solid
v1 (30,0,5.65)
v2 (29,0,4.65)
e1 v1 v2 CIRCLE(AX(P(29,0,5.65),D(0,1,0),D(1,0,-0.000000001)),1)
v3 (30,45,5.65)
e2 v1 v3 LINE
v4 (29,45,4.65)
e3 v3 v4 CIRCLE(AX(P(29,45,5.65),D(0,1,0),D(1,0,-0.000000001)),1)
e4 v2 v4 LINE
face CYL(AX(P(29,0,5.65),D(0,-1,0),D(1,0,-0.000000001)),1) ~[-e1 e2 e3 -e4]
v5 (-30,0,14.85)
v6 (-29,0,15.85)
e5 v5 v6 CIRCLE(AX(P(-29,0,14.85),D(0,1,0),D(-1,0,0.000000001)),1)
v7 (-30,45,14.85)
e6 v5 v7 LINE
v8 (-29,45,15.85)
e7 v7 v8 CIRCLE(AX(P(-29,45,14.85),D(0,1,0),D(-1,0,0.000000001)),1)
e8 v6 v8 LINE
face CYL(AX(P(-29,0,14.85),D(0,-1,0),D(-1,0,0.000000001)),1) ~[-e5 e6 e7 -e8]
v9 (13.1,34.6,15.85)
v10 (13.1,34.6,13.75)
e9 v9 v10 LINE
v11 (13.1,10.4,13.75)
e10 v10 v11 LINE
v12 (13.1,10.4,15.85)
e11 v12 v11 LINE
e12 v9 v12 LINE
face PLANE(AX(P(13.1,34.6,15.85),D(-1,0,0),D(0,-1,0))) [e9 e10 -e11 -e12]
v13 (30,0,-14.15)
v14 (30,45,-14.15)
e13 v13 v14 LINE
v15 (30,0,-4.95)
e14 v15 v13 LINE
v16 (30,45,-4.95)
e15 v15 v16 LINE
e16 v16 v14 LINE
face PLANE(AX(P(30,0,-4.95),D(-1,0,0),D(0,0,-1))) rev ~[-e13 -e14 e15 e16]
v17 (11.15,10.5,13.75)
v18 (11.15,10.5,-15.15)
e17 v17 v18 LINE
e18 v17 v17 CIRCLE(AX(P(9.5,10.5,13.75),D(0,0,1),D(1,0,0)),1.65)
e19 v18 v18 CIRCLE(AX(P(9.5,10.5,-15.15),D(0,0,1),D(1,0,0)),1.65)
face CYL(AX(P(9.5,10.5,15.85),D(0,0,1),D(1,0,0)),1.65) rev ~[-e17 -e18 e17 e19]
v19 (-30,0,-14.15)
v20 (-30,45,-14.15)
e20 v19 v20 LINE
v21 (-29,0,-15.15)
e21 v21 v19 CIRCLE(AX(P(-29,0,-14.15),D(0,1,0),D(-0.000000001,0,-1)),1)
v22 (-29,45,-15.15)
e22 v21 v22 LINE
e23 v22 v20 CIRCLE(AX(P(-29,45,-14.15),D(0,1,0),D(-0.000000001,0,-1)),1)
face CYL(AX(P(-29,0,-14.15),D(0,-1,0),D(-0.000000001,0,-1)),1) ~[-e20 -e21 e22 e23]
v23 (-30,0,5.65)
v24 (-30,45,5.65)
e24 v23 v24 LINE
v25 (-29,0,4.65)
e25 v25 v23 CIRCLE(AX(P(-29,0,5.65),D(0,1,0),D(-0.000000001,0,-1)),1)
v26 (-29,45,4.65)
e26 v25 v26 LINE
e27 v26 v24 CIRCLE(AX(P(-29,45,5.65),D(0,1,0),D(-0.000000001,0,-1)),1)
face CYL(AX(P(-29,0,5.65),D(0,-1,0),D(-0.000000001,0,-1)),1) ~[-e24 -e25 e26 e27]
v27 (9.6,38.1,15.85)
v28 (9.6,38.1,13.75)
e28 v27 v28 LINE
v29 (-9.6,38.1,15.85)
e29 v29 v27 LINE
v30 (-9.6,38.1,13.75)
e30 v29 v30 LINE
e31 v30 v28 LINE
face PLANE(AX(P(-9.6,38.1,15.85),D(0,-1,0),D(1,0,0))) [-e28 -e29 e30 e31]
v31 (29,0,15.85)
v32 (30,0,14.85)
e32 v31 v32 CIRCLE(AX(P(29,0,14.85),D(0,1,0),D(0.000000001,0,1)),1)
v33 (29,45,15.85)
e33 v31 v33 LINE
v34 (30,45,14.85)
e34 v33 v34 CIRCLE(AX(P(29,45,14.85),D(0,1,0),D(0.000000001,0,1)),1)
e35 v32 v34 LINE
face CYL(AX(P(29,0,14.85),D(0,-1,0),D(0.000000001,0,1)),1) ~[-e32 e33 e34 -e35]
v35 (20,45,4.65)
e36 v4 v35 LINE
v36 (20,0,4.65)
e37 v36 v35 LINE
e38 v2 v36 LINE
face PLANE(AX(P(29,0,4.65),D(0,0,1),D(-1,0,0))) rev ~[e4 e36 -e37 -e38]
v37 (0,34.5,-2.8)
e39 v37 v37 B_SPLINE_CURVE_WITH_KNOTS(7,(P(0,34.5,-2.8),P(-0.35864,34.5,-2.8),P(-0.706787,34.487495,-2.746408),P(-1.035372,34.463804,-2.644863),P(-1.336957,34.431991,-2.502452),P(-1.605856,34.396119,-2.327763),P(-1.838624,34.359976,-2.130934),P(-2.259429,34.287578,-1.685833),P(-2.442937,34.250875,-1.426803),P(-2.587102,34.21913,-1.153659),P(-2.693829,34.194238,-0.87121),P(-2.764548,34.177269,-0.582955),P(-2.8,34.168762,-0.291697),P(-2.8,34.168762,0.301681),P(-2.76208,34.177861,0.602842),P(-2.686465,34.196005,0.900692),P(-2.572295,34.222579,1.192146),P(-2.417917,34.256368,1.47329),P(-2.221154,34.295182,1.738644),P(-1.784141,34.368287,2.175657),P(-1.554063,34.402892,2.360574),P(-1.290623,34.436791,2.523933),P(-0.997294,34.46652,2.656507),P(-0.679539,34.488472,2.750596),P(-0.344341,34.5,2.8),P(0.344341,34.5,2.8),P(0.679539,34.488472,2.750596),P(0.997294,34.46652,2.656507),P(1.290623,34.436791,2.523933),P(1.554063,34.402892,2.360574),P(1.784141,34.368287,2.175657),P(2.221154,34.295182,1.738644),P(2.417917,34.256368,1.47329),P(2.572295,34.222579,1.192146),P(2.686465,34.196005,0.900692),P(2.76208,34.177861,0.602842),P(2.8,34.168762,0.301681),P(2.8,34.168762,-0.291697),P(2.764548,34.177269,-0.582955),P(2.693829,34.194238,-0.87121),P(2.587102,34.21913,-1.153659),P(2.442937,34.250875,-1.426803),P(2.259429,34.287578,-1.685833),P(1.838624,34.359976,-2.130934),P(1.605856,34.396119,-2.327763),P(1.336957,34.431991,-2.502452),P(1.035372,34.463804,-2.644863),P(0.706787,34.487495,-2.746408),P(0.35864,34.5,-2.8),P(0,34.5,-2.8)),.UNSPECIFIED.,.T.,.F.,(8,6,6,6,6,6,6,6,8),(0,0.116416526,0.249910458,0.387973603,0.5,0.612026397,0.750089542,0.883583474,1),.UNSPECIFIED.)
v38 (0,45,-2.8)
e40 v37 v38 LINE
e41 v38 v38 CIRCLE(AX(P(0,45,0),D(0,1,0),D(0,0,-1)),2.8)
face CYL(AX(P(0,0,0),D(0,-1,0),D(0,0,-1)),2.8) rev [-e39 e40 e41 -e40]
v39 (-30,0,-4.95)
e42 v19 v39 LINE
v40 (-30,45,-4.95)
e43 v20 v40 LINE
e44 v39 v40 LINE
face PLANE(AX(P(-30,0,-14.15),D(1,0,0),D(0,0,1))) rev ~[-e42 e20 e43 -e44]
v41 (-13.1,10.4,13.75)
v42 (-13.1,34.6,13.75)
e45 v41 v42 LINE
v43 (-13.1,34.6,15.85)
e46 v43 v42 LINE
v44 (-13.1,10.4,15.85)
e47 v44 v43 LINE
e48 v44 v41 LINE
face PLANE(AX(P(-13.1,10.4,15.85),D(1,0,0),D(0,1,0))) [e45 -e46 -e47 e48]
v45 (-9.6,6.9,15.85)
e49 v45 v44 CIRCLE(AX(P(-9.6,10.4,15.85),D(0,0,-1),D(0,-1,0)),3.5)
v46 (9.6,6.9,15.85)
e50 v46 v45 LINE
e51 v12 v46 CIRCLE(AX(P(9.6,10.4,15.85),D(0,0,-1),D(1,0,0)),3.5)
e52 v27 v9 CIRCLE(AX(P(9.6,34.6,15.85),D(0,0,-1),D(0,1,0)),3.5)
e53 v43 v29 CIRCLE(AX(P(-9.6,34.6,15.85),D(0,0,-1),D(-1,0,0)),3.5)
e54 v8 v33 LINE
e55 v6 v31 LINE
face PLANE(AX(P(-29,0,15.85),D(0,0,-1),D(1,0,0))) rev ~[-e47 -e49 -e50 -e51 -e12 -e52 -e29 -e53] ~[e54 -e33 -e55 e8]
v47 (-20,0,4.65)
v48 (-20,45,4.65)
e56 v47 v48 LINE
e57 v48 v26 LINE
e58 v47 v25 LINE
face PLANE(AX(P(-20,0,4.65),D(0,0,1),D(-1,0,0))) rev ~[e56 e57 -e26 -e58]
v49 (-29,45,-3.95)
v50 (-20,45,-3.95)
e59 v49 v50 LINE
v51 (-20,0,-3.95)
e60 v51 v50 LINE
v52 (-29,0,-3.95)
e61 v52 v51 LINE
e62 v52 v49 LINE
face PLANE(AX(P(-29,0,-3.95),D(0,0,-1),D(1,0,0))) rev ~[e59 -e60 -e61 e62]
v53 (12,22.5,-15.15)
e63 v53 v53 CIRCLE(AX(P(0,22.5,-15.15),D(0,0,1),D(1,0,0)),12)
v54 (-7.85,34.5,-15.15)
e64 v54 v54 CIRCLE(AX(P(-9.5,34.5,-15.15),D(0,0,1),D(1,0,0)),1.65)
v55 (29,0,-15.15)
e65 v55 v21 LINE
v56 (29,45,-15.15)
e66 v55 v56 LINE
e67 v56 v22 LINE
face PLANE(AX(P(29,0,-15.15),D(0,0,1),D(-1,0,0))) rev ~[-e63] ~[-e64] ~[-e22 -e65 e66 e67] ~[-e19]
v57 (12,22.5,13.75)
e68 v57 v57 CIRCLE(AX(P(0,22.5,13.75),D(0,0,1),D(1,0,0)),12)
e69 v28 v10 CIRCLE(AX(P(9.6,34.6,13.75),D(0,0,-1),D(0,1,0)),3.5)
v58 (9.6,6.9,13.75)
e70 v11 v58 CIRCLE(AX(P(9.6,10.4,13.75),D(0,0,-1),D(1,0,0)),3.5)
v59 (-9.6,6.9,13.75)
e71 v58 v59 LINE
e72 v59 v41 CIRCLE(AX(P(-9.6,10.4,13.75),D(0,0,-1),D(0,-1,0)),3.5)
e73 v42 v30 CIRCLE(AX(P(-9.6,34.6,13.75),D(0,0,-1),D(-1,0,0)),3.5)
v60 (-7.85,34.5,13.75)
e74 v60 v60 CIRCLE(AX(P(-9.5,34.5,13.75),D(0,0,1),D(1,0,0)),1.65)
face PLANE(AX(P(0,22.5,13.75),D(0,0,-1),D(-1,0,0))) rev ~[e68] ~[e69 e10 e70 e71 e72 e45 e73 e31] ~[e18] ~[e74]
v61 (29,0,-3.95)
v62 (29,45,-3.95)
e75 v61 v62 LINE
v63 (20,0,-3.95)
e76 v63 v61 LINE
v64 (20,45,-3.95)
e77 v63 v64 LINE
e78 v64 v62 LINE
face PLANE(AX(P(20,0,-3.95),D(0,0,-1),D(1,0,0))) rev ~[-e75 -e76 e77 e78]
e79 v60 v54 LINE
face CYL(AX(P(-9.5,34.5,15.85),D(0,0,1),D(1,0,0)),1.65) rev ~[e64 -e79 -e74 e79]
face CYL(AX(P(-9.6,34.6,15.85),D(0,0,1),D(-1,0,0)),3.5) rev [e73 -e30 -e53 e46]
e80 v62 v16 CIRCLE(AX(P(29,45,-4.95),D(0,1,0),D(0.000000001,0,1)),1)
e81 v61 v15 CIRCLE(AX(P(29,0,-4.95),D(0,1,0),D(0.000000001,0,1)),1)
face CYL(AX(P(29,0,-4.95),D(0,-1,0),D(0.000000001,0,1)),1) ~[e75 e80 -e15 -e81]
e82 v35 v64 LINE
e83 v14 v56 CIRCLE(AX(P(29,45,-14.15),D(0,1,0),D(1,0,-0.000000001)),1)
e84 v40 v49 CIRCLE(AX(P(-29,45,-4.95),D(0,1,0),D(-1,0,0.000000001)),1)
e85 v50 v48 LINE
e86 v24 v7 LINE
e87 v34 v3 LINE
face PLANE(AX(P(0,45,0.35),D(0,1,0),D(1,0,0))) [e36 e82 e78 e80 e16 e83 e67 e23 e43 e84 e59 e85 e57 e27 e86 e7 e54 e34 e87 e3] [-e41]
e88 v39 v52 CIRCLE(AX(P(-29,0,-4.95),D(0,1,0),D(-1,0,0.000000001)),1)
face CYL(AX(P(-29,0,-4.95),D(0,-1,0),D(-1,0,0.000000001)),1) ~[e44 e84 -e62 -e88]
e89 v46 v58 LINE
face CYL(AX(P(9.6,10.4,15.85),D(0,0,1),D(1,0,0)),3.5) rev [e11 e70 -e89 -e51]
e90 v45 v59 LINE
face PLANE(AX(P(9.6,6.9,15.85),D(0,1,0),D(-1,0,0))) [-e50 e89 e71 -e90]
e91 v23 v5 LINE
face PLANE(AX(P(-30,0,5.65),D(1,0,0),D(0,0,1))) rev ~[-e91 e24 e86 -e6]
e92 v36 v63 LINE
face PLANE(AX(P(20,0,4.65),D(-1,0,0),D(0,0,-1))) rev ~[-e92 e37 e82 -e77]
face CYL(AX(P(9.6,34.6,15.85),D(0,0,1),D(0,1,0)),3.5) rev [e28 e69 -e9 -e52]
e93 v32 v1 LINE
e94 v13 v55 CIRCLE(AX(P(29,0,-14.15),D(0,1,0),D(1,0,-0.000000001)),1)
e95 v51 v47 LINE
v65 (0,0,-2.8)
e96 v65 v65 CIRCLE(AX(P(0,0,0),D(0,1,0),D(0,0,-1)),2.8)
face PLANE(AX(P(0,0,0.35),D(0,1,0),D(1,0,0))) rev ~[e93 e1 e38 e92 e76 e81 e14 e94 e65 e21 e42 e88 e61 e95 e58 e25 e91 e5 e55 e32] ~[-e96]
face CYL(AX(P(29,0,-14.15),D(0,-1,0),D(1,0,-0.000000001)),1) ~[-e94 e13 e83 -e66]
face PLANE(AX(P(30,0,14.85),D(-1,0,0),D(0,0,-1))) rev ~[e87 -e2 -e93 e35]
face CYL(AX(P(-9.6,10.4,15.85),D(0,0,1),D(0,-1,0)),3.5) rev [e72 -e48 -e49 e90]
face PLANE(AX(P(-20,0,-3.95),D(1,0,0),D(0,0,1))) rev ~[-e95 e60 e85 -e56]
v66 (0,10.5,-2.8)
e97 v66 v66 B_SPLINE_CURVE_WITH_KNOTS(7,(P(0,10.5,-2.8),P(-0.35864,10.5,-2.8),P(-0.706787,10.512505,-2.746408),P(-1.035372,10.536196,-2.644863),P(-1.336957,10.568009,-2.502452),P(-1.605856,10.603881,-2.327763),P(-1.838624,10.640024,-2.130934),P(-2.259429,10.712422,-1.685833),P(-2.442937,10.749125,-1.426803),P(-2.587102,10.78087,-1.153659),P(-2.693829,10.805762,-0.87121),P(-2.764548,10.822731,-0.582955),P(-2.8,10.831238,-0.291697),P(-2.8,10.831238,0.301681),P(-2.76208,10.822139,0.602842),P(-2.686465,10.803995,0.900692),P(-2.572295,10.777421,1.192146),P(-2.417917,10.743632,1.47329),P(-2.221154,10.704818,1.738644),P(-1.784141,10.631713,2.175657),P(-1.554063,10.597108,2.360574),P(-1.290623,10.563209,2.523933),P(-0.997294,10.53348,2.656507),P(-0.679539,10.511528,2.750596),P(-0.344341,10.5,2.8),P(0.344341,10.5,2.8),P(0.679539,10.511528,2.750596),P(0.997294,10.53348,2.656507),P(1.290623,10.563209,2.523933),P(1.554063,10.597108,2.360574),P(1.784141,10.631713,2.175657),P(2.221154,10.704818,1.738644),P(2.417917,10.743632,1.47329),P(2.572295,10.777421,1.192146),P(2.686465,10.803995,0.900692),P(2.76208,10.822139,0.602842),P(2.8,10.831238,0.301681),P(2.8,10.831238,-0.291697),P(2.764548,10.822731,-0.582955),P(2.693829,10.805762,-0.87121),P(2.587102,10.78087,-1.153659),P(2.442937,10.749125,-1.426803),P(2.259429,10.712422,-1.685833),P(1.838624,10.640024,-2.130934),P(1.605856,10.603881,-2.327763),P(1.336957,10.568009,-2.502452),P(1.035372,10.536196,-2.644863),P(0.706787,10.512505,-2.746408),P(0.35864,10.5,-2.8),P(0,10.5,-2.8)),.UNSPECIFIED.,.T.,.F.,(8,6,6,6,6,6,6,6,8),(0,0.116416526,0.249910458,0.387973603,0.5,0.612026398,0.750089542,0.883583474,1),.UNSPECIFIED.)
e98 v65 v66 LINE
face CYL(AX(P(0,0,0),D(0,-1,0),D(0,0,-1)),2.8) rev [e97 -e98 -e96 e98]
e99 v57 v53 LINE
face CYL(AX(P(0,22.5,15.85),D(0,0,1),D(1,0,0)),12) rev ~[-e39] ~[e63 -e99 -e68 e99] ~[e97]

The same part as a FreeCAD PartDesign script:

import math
import FreeCAD as App
import Part
import Sketcher

doc = App.newDocument("Part")
params = doc.addObject("Spreadsheet::Sheet", "Params")
for row, (alias, value) in enumerate([
    ("sketch1_radius", "1 mm"),
    ("sketch1_diameter", "5.6 mm"),
    ("sketch1_width", "9 mm"),
    ("sketch1_width2", "58 mm"),
    ("sketch1_height", "8.6 mm"),
    ("pad1_length", "45 mm"),
    ("sketch2_diameter", "24 mm"),
    ("sketch2_diameter2", "3.3 mm"),
    ("pocket1_length", "56 mm"),
    ("sketch3_radius", "3.5 mm"),
    ("sketch3_width", "19.2 mm"),
    ("sketch3_height", "24.2 mm"),
    ("pocket2_length", "2.1 mm"),
], start=1):
    params.set(f"A{row}", alias)
    params.set(f"B{row}", "=" + value)
    params.setAlias(f"B{row}", alias)

body = doc.addObject("PartDesign::Body", "Body")

sketch1 = body.newObject("Sketcher::SketchObject", "Sketch")
sketch1.AttachmentSupport = (doc.getObject("XZ_Plane"), [""])
sketch1.MapMode = "FlatFace"
sketch1.addGeometry(Part.LineSegment(App.Vector(20, 4.7, 0), App.Vector(20, -4, 0)), False)
sketch1.addGeometry(Part.LineSegment(App.Vector(20, -4, 0), App.Vector(29, -4, 0)), False)
sketch1.addGeometry(Part.ArcOfCircle(Part.Circle(App.Vector(29, -5, 0), App.Vector(0, 0, 1), 1), math.radians(0), math.radians(90)), False)
sketch1.addGeometry(Part.LineSegment(App.Vector(30, -5, 0), App.Vector(30, -14.2, 0)), False)
sketch1.addGeometry(Part.ArcOfCircle(Part.Circle(App.Vector(29, -14.1, 0), App.Vector(0, 0, 1), 1), math.radians(-90), math.radians(0)), False)
sketch1.addGeometry(Part.LineSegment(App.Vector(29, -15.2, 0), App.Vector(-29, -15.2, 0)), False)
sketch1.addGeometry(Part.ArcOfCircle(Part.Circle(App.Vector(-29, -14.1, 0), App.Vector(0, 0, 1), 1), math.radians(-180), math.radians(-90)), False)
sketch1.addGeometry(Part.LineSegment(App.Vector(-30, -14.2, 0), App.Vector(-30, -5, 0)), False)
sketch1.addGeometry(Part.ArcOfCircle(Part.Circle(App.Vector(-29, -5, 0), App.Vector(0, 0, 1), 1), math.radians(90), math.radians(180)), False)
sketch1.addGeometry(Part.LineSegment(App.Vector(-29, -4, 0), App.Vector(-20, -4, 0)), False)
sketch1.addGeometry(Part.LineSegment(App.Vector(-20, -4, 0), App.Vector(-20, 4.7, 0)), False)
sketch1.addGeometry(Part.LineSegment(App.Vector(-20, 4.7, 0), App.Vector(-29, 4.7, 0)), False)
sketch1.addGeometry(Part.ArcOfCircle(Part.Circle(App.Vector(-29, 5.7, 0), App.Vector(0, 0, 1), 1), math.radians(-180), math.radians(-90)), False)
sketch1.addGeometry(Part.LineSegment(App.Vector(-30, 5.7, 0), App.Vector(-30, 14.8, 0)), False)
sketch1.addGeometry(Part.ArcOfCircle(Part.Circle(App.Vector(-29, 14.8, 0), App.Vector(0, 0, 1), 1), math.radians(90), math.radians(180)), False)
sketch1.addGeometry(Part.LineSegment(App.Vector(-29, 15.8, 0), App.Vector(29, 15.8, 0)), False)
sketch1.addGeometry(Part.ArcOfCircle(Part.Circle(App.Vector(29, 14.8, 0), App.Vector(0, 0, 1), 1), math.radians(0), math.radians(90)), False)
sketch1.addGeometry(Part.LineSegment(App.Vector(30, 14.8, 0), App.Vector(30, 5.7, 0)), False)
sketch1.addGeometry(Part.ArcOfCircle(Part.Circle(App.Vector(29, 5.7, 0), App.Vector(0, 0, 1), 1), math.radians(-90), math.radians(0)), False)
sketch1.addGeometry(Part.LineSegment(App.Vector(29, 4.7, 0), App.Vector(20, 4.7, 0)), False)
sketch1.addGeometry(Part.Circle(App.Vector(0, 0, 0), App.Vector(0, 0, 1), 2.8), False)
sketch1.addConstraint(Sketcher.Constraint("Coincident", 0, 2, 1, 1))
sketch1.addConstraint(Sketcher.Constraint("Tangent", 1, 2, 2, 2))
sketch1.addConstraint(Sketcher.Constraint("Tangent", 2, 1, 3, 1))
sketch1.addConstraint(Sketcher.Constraint("Tangent", 3, 2, 4, 2))
sketch1.addConstraint(Sketcher.Constraint("Tangent", 4, 1, 5, 1))
sketch1.addConstraint(Sketcher.Constraint("Tangent", 5, 2, 6, 2))
sketch1.addConstraint(Sketcher.Constraint("Tangent", 6, 1, 7, 1))
sketch1.addConstraint(Sketcher.Constraint("Tangent", 7, 2, 8, 2))
sketch1.addConstraint(Sketcher.Constraint("Tangent", 8, 1, 9, 1))
sketch1.addConstraint(Sketcher.Constraint("Coincident", 9, 2, 10, 1))
sketch1.addConstraint(Sketcher.Constraint("Coincident", 10, 2, 11, 1))
sketch1.addConstraint(Sketcher.Constraint("Tangent", 11, 2, 12, 2))
sketch1.addConstraint(Sketcher.Constraint("Tangent", 12, 1, 13, 1))
sketch1.addConstraint(Sketcher.Constraint("Tangent", 13, 2, 14, 2))
sketch1.addConstraint(Sketcher.Constraint("Tangent", 14, 1, 15, 1))
sketch1.addConstraint(Sketcher.Constraint("Tangent", 15, 2, 16, 2))
sketch1.addConstraint(Sketcher.Constraint("Tangent", 16, 1, 17, 1))
sketch1.addConstraint(Sketcher.Constraint("Tangent", 17, 2, 18, 2))
sketch1.addConstraint(Sketcher.Constraint("Tangent", 18, 1, 19, 1))
sketch1.addConstraint(Sketcher.Constraint("Coincident", 19, 2, 0, 1))
sketch1.addConstraint(Sketcher.Constraint("Vertical", 0))
sketch1.addConstraint(Sketcher.Constraint("Horizontal", 1))
sketch1.addConstraint(Sketcher.Constraint("Vertical", 3))
sketch1.addConstraint(Sketcher.Constraint("Horizontal", 5))
sketch1.addConstraint(Sketcher.Constraint("Vertical", 7))
sketch1.addConstraint(Sketcher.Constraint("Horizontal", 9))
sketch1.addConstraint(Sketcher.Constraint("Vertical", 10))
sketch1.addConstraint(Sketcher.Constraint("Horizontal", 11))
sketch1.addConstraint(Sketcher.Constraint("Vertical", 13))
sketch1.addConstraint(Sketcher.Constraint("Horizontal", 15))
sketch1.addConstraint(Sketcher.Constraint("Vertical", 17))
sketch1.addConstraint(Sketcher.Constraint("Horizontal", 19))
sketch1.addConstraint(Sketcher.Constraint("Coincident", 20, 3, -1, 1))
sketch1.addConstraint(Sketcher.Constraint("Equal", 2, 4))
sketch1.addConstraint(Sketcher.Constraint("Equal", 4, 6))
sketch1.addConstraint(Sketcher.Constraint("Equal", 6, 8))
sketch1.addConstraint(Sketcher.Constraint("Equal", 8, 12))
sketch1.addConstraint(Sketcher.Constraint("Equal", 12, 14))
sketch1.addConstraint(Sketcher.Constraint("Equal", 14, 16))
sketch1.addConstraint(Sketcher.Constraint("Equal", 16, 18))
sketch1.addConstraint(Sketcher.Constraint("Symmetric", 2, 3, 8, 3, -2))
sketch1.addConstraint(Sketcher.Constraint("Symmetric", 12, 3, 18, 3, -2))
sketch1.addConstraint(Sketcher.Constraint("Vertical", 8, 3, 12, 3))
sketch1.addConstraint(Sketcher.Constraint("Equal", 1, 9))
sketch1.addConstraint(Sketcher.Constraint("Equal", 7, 13))
sketch1.addConstraint(Sketcher.Constraint("Radius", 2, 1.0))
sketch1.addConstraint(Sketcher.Constraint("Diameter", 20, 5.6))
sketch1.addConstraint(Sketcher.Constraint("DistanceX", 1, 1, 1, 2, 9.0))
sketch1.addConstraint(Sketcher.Constraint("DistanceX", 5, 2, 5, 1, 58.0))
sketch1.addConstraint(Sketcher.Constraint("DistanceY", 0, 2, 0, 1, 8.6))
sketch1.addConstraint(Sketcher.Constraint("DistanceY", 3, 2, 3, 1, 9.2))
sketch1.addConstraint(Sketcher.Constraint("DistanceY", 2, 3, -1, 1, 4.95))
sketch1.setExpression("Constraints[45]", "Params.sketch1_radius")
sketch1.setExpression("Constraints[46]", "Params.sketch1_diameter")
sketch1.setExpression("Constraints[47]", "Params.sketch1_width")
sketch1.setExpression("Constraints[48]", "Params.sketch1_width2")
sketch1.setExpression("Constraints[49]", "Params.sketch1_height")
pad1 = body.newObject("PartDesign::Pad", "Pad")
pad1.Profile = sketch1
pad1.setExpression("Length", "Params.pad1_length")
pad1.Reversed = True

sketch2 = body.newObject("Sketcher::SketchObject", "Sketch001")
sketch2.AttachmentSupport = (doc.getObject("XY_Plane"), [""])
sketch2.MapMode = "FlatFace"
sketch2.AttachmentOffset = App.Placement(App.Vector(0, 0, 15.85), App.Rotation())
sketch2.addGeometry(Part.Circle(App.Vector(0, 22.5, 0), App.Vector(0, 0, 1), 12), False)
sketch2.addGeometry(Part.Circle(App.Vector(-9.5, 34.5, 0), App.Vector(0, 0, 1), 1.6), False)
sketch2.addGeometry(Part.Circle(App.Vector(9.5, 10.5, 0), App.Vector(0, 0, 1), 1.6), False)
sketch2.addConstraint(Sketcher.Constraint("Equal", 1, 2))
sketch2.addConstraint(Sketcher.Constraint("PointOnObject", 0, 3, -2))
sketch2.addConstraint(Sketcher.Constraint("Diameter", 0, 24.0))
sketch2.addConstraint(Sketcher.Constraint("Diameter", 1, 3.3))
sketch2.addConstraint(Sketcher.Constraint("DistanceY", 0, 3, 1, 3, 12.0))
sketch2.addConstraint(Sketcher.Constraint("DistanceY", 2, 3, 0, 3, 12.0))
sketch2.addConstraint(Sketcher.Constraint("DistanceX", 1, 3, 2, 3, 19.0))
sketch2.addConstraint(Sketcher.Constraint("DistanceY", -1, 1, 0, 3, 22.5))
sketch2.addConstraint(Sketcher.Constraint("DistanceX", 1, 3, -1, 1, 9.5))
sketch2.setExpression("Constraints[2]", "Params.sketch2_diameter")
sketch2.setExpression("Constraints[3]", "Params.sketch2_diameter2")
pocket1 = body.newObject("PartDesign::Pocket", "Pocket")
pocket1.Profile = sketch2
pocket1.setExpression("Length", "Params.pocket1_length")

sketch3 = body.newObject("Sketcher::SketchObject", "Sketch002")
sketch3.AttachmentSupport = (doc.getObject("XY_Plane"), [""])
sketch3.MapMode = "FlatFace"
sketch3.AttachmentOffset = App.Placement(App.Vector(0, 0, 15.85), App.Rotation())
sketch3.addGeometry(Part.LineSegment(App.Vector(9.6, 38.1, 0), App.Vector(-9.6, 38.1, 0)), False)
sketch3.addGeometry(Part.ArcOfCircle(Part.Circle(App.Vector(-9.6, 34.6, 0), App.Vector(0, 0, 1), 3.5), math.radians(90), math.radians(180)), False)
sketch3.addGeometry(Part.LineSegment(App.Vector(-13.1, 34.6, 0), App.Vector(-13.1, 10.4, 0)), False)
sketch3.addGeometry(Part.ArcOfCircle(Part.Circle(App.Vector(-9.6, 10.4, 0), App.Vector(0, 0, 1), 3.5), math.radians(-180), math.radians(-90)), False)
sketch3.addGeometry(Part.LineSegment(App.Vector(-9.6, 6.9, 0), App.Vector(9.6, 6.9, 0)), False)
sketch3.addGeometry(Part.ArcOfCircle(Part.Circle(App.Vector(9.6, 10.4, 0), App.Vector(0, 0, 1), 3.5), math.radians(-90), math.radians(0)), False)
sketch3.addGeometry(Part.LineSegment(App.Vector(13.1, 10.4, 0), App.Vector(13.1, 34.6, 0)), False)
sketch3.addGeometry(Part.ArcOfCircle(Part.Circle(App.Vector(9.6, 34.6, 0), App.Vector(0, 0, 1), 3.5), math.radians(0), math.radians(90)), False)
sketch3.addConstraint(Sketcher.Constraint("Tangent", 0, 2, 1, 1))
sketch3.addConstraint(Sketcher.Constraint("Tangent", 1, 2, 2, 1))
sketch3.addConstraint(Sketcher.Constraint("Tangent", 2, 2, 3, 1))
sketch3.addConstraint(Sketcher.Constraint("Tangent", 3, 2, 4, 1))
sketch3.addConstraint(Sketcher.Constraint("Tangent", 4, 2, 5, 1))
sketch3.addConstraint(Sketcher.Constraint("Tangent", 5, 2, 6, 1))
sketch3.addConstraint(Sketcher.Constraint("Tangent", 6, 2, 7, 1))
sketch3.addConstraint(Sketcher.Constraint("Tangent", 7, 2, 0, 1))
sketch3.addConstraint(Sketcher.Constraint("Horizontal", 0))
sketch3.addConstraint(Sketcher.Constraint("Vertical", 2))
sketch3.addConstraint(Sketcher.Constraint("Horizontal", 4))
sketch3.addConstraint(Sketcher.Constraint("Vertical", 6))
sketch3.addConstraint(Sketcher.Constraint("Equal", 1, 3))
sketch3.addConstraint(Sketcher.Constraint("Equal", 3, 5))
sketch3.addConstraint(Sketcher.Constraint("Equal", 5, 7))
sketch3.addConstraint(Sketcher.Constraint("Radius", 1, 3.5))
sketch3.addConstraint(Sketcher.Constraint("DistanceX", 0, 2, 0, 1, 19.2))
sketch3.addConstraint(Sketcher.Constraint("DistanceY", 2, 2, 2, 1, 24.2))
sketch3.addConstraint(Sketcher.Constraint("DistanceX", 1, 3, -1, 1, 9.6))
sketch3.addConstraint(Sketcher.Constraint("DistanceY", -1, 1, 1, 3, 34.6))
sketch3.setExpression("Constraints[15]", "Params.sketch3_radius")
sketch3.setExpression("Constraints[16]", "Params.sketch3_width")
sketch3.setExpression("Constraints[17]", "Params.sketch3_height")
pocket2 = body.newObject("PartDesign::Pocket", "Pocket001")
pocket2.Profile = sketch3
pocket2.setExpression("Length", "Params.pocket2_length")

doc.recompute()
